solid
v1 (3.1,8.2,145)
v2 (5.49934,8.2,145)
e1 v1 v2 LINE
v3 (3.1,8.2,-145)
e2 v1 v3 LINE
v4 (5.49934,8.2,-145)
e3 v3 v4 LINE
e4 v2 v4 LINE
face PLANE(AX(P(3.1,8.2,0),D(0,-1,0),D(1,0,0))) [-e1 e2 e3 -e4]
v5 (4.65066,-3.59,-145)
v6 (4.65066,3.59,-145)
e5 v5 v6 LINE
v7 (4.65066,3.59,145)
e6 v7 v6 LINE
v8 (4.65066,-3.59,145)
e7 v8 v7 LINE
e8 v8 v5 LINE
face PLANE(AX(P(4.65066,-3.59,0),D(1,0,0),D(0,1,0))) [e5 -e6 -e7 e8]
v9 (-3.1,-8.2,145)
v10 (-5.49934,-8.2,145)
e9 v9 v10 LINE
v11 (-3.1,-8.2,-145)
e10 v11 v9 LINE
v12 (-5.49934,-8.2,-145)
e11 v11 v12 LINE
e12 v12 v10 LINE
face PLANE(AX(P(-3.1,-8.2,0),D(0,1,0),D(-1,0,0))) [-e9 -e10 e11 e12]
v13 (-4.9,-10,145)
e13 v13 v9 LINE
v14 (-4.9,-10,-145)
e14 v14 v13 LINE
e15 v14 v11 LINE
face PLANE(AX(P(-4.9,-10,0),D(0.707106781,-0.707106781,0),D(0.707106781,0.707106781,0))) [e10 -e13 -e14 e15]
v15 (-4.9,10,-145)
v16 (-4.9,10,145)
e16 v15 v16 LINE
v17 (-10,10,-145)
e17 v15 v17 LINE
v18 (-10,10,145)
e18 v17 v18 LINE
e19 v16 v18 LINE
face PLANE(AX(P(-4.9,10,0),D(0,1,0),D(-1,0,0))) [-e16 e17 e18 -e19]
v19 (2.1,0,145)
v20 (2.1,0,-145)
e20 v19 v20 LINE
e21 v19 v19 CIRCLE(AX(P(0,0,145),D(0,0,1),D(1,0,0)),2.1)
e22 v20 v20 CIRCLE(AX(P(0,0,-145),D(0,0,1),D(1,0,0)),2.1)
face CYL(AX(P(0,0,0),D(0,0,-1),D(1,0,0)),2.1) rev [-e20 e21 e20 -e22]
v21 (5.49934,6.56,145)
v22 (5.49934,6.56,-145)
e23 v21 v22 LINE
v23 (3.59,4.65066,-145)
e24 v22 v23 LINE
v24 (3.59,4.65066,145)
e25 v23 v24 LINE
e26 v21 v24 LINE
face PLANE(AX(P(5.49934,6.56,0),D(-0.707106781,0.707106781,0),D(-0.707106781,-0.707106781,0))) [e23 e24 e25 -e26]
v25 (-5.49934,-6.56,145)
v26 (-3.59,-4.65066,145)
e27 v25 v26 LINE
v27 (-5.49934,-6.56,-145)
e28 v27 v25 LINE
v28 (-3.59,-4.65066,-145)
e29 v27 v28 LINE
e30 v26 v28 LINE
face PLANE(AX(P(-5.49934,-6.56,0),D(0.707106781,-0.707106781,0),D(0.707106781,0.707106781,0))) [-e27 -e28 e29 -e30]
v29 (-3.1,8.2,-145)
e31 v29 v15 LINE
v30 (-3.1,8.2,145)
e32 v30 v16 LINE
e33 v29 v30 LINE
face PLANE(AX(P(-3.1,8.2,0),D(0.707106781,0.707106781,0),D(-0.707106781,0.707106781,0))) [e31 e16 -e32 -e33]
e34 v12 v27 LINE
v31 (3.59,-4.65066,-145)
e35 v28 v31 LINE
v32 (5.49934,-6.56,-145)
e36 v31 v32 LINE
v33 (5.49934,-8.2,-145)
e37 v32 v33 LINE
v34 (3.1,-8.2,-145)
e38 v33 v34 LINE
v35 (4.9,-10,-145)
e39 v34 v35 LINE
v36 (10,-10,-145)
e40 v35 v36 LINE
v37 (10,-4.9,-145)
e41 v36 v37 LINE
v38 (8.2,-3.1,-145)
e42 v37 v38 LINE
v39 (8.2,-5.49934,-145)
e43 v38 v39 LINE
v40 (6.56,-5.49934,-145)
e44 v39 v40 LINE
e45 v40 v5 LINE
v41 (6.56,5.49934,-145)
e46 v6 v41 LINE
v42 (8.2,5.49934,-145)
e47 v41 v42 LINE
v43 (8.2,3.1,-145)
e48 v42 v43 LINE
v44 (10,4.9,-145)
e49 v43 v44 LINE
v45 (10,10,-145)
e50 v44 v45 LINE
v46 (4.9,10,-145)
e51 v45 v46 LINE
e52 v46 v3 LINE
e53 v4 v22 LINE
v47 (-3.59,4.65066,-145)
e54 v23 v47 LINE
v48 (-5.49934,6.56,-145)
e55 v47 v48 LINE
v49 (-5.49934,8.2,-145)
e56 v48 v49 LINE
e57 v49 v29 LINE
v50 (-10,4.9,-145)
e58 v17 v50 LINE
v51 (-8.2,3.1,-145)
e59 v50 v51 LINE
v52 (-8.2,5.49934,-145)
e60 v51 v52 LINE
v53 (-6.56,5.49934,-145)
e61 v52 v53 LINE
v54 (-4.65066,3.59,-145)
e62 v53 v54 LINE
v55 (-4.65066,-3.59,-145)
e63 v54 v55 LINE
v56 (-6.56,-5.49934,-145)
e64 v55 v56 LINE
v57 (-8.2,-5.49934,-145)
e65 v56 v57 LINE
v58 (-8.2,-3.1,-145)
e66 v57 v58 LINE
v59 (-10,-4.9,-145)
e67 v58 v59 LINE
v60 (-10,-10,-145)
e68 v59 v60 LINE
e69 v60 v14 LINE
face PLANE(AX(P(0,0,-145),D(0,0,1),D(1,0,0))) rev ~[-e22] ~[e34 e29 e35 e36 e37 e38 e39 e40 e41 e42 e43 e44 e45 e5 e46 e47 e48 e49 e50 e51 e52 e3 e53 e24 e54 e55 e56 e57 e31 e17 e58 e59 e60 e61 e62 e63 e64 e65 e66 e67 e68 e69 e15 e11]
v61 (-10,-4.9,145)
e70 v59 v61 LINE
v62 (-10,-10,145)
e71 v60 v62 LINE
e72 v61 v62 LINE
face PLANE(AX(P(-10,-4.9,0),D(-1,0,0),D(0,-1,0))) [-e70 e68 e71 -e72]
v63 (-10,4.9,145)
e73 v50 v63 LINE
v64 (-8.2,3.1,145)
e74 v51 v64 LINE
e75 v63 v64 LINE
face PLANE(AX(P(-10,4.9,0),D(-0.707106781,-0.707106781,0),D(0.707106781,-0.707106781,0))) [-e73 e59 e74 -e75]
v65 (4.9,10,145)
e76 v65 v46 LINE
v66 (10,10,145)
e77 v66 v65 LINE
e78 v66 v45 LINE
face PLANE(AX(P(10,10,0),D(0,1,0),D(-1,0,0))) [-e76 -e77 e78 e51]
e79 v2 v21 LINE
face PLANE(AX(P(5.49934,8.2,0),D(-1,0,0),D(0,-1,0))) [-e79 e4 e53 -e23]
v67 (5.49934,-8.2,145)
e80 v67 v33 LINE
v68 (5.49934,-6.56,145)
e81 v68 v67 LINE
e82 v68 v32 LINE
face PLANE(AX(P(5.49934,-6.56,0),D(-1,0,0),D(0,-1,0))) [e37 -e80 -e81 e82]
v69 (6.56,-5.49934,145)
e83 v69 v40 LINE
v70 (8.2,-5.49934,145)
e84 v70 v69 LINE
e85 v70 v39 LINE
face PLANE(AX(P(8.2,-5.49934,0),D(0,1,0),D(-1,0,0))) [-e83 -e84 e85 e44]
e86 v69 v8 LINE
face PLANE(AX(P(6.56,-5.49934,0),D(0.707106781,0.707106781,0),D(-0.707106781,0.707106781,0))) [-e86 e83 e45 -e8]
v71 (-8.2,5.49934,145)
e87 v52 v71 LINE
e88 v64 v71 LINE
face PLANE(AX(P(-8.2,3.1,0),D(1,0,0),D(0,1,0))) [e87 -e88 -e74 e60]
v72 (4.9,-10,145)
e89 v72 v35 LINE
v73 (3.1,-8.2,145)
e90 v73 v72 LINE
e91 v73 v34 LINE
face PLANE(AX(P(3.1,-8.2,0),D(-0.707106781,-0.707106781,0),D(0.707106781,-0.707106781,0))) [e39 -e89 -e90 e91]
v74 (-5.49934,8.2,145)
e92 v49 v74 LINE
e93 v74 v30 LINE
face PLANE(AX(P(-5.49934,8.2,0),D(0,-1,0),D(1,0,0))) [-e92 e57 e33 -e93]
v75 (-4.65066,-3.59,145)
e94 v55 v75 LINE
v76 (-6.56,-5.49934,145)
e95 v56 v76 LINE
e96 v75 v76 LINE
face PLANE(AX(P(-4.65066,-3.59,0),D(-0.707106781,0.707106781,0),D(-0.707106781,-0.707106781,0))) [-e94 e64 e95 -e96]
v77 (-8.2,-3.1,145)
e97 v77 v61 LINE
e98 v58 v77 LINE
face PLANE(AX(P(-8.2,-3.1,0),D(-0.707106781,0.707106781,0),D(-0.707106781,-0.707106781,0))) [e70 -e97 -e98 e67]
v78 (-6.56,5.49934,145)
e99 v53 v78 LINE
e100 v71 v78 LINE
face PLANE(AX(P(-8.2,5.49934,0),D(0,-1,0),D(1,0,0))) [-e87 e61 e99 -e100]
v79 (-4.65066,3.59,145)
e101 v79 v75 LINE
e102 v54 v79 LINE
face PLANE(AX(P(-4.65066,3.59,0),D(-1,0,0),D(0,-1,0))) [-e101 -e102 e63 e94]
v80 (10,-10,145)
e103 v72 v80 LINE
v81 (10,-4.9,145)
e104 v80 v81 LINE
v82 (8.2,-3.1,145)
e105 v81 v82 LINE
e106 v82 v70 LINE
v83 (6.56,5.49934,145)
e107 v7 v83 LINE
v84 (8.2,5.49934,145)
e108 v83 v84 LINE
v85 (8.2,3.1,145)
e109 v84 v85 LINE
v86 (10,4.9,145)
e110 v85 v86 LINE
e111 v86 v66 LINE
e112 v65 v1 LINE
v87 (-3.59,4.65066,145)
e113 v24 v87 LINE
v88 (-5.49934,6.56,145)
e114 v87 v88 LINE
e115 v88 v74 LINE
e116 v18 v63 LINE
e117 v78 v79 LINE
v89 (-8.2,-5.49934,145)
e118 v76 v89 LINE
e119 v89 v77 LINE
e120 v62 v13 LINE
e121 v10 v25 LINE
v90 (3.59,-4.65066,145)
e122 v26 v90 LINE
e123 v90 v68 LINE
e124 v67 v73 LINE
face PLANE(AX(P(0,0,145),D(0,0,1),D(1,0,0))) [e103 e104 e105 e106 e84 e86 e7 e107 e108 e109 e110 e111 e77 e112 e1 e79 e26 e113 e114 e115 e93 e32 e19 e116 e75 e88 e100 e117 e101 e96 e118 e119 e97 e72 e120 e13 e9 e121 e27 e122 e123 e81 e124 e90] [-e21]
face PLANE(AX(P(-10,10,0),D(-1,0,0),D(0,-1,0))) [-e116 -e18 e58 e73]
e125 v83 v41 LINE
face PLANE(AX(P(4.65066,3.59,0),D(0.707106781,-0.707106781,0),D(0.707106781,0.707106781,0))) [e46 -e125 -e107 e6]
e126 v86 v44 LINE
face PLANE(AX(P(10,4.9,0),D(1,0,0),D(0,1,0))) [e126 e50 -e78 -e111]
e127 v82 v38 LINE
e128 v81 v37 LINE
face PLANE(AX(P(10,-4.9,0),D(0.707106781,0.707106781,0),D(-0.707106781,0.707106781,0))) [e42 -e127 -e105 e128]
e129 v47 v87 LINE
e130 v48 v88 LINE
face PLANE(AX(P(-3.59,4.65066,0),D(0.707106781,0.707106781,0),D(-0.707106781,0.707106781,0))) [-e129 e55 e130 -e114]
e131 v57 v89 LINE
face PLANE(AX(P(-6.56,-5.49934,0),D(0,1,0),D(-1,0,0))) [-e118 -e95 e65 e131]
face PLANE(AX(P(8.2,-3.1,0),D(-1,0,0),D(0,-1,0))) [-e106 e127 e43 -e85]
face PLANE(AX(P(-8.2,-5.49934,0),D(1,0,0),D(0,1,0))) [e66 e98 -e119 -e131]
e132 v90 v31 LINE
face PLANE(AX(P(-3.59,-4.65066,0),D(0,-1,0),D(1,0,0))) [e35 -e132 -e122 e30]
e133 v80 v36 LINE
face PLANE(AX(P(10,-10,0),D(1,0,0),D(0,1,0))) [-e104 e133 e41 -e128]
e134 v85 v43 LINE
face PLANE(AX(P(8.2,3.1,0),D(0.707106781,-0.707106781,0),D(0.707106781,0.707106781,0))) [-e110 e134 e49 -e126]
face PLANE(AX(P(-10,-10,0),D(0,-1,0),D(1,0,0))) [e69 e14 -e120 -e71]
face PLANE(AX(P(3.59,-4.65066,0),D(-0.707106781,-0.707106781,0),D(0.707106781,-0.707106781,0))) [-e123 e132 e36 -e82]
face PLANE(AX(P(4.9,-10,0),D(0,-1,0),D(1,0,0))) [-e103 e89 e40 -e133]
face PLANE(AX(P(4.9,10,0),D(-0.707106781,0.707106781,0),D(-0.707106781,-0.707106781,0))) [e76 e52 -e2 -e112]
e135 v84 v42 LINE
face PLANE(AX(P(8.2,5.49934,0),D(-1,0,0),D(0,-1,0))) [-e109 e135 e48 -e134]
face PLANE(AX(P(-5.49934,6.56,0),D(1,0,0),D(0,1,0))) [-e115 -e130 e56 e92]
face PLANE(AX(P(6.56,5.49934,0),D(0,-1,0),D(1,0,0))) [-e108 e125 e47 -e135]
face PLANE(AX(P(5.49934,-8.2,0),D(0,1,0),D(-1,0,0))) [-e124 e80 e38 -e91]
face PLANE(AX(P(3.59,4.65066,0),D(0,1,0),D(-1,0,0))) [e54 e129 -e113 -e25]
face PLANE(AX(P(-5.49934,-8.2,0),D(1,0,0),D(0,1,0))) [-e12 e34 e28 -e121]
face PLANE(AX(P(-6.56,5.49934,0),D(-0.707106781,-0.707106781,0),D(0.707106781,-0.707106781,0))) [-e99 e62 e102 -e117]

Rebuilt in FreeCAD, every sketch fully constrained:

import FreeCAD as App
import Part
import Sketcher

V = App.Vector


def add_polygon(sketch, points):
    """Adds a closed chain of lines whose ends are joined by coincident constraints."""
    first, n = sketch.GeometryCount, len(points)
    for a, b in zip(points, points[1:] + points[:1]):
        sketch.addGeometry(Part.LineSegment(App.Vector(*a, 0), App.Vector(*b, 0)), False)
    for i in range(n):
        sketch.addConstraint(Sketcher.Constraint("Coincident", first + i, 2, first + (i + 1) % n, 1))

doc = App.newDocument("Part")
body = doc.addObject("PartDesign::Body", "Body")

sketch1 = body.newObject("Sketcher::SketchObject", "Sketch")
sketch1.AttachmentSupport = (doc.getObject("XY_Plane"), [""])
sketch1.MapMode = "FlatFace"
add_polygon(sketch1, [(5.5, 6.6), (3.6, 4.7), (-3.6, 4.7), (-5.5, 6.6), (-5.5, 8.2), (-3.1, 8.2), (-4.9, 10), (-10, 10), (-10, 4.9), (-8.2, 3.1), (-8.2, 5.5), (-6.6, 5.5), (-4.7, 3.6), (-4.7, -3.6), (-6.6, -5.5), (-8.2, -5.5), (-8.2, -3.1), (-10, -4.9), (-10, -10), (-4.9, -10), (-3.1, -8.2), (-5.5, -8.2), (-5.5, -6.6), (-3.6, -4.7), (3.6, -4.7), (5.5, -6.6), (5.5, -8.2), (3.1, -8.2), (4.9, -10), (10, -10), (10, -4.9), (8.2, -3.1), (8.2, -5.5), (6.6, -5.5), (4.7, -3.6), (4.7, 3.6), (6.6, 5.5), (8.2, 5.5), (8.2, 3.1), (10, 4.9), (10, 10), (4.9, 10), (3.1, 8.2), (5.5, 8.2)])
sketch1.addGeometry(Part.Circle(V(0, 0, 0), V(0, 0, 1), 2.1), False)
sketch1.addConstraint([
    Sketcher.Constraint("Horizontal", 1),
    Sketcher.Constraint("Vertical", 3),
    Sketcher.Constraint("Horizontal", 4),
    Sketcher.Constraint("Horizontal", 6),
    Sketcher.Constraint("Vertical", 7),
    Sketcher.Constraint("Vertical", 9),
    Sketcher.Constraint("Horizontal", 10),
    Sketcher.Constraint("Vertical", 12),
    Sketcher.Constraint("Horizontal", 14),
    Sketcher.Constraint("Vertical", 15),
    Sketcher.Constraint("Vertical", 17),
    Sketcher.Constraint("Horizontal", 18),
    Sketcher.Constraint("Horizontal", 20),
    Sketcher.Constraint("Vertical", 21),
    Sketcher.Constraint("Horizontal", 23),
    Sketcher.Constraint("Vertical", 25),
    Sketcher.Constraint("Horizontal", 26),
    Sketcher.Constraint("Horizontal", 28),
    Sketcher.Constraint("Vertical", 29),
    Sketcher.Constraint("Vertical", 31),
    Sketcher.Constraint("Horizontal", 32),
    Sketcher.Constraint("Vertical", 34),
    Sketcher.Constraint("Horizontal", 36),
    Sketcher.Constraint("Vertical", 37),
    Sketcher.Constraint("Vertical", 39),
    Sketcher.Constraint("Horizontal", 40),
    Sketcher.Constraint("Horizontal", 42),
    Sketcher.Constraint("Vertical", 43),
    Sketcher.Constraint("Coincident", 44, 3, -1, 1),
    Sketcher.Constraint("Symmetric", 0, 2, 22, 2, -1, 1),
    Sketcher.Constraint("Symmetric", 2, 2, 24, 2, -1, 1),
    Sketcher.Constraint("Symmetric", 4, 2, 26, 2, -1, 1),
    Sketcher.Constraint("Symmetric", 5, 2, 27, 2, -1, 1),
    Sketcher.Constraint("Symmetric", 7, 2, 29, 2, -1, 1),
    Sketcher.Constraint("Symmetric", 8, 2, 30, 2, -1, 1),
    Sketcher.Constraint("Symmetric", 10, 2, 32, 2, -1, 1),
    Sketcher.Constraint("Symmetric", 11, 2, 33, 2, -1, 1),
    Sketcher.Constraint("Symmetric", 13, 2, 35, 2, -1, 1),
    Sketcher.Constraint("Symmetric", 15, 2, 37, 2, -1, 1),
    Sketcher.Constraint("Symmetric", 16, 2, 38, 2, -1, 1),
    Sketcher.Constraint("Symmetric", 18, 2, 40, 2, -1, 1),
    Sketcher.Constraint("Symmetric", 19, 2, 41, 2, -1, 1),
    Sketcher.Constraint("Symmetric", 21, 2, 43, 2, -1, 1),
    Sketcher.Constraint("Symmetric", 21, 2, 24, 2, -2),
    Sketcher.Constraint("Symmetric", 19, 2, 26, 2, -2),
    Sketcher.Constraint("Symmetric", 18, 2, 27, 2, -2),
    Sketcher.Constraint("Symmetric", 16, 2, 29, 2, -2),
    Sketcher.Constraint("Symmetric", 15, 2, 30, 2, -2),
    Sketcher.Constraint("Symmetric", 13, 2, 32, 2, -2),
    Sketcher.Constraint("Perpendicular", 0, 2),
    Sketcher.Constraint("Parallel", 2, 5),
    Sketcher.Constraint("Parallel", 5, 8),
    Sketcher.Constraint("Parallel", 8, 11),
    Sketcher.Constraint("Perpendicular", 11, 13),
    Sketcher.Constraint("Parallel", 13, 16),
    Sketcher.Constraint("Perpendicular", 22, 24),
    Sketcher.Constraint("Perpendicular", 33, 35),
    Sketcher.Constraint("Equal", 36, 3),
    Sketcher.Constraint("Equal", 40, 7),
    Sketcher.Constraint("Equal", 42, 9),
    Sketcher.Constraint("Equal", 23, 12),
    Sketcher.Constraint("Equal", 5, 8),
    Sketcher.Constraint("Equal", 2, 11),
    Sketcher.Constraint("Diameter", 44, 4.2),
    Sketcher.Constraint("DistanceX", 6, 2, 6, 1, 5.1),
    Sketcher.Constraint("DistanceY", -1, 1, 5, 2, 10.0),
    Sketcher.Constraint("DistanceY", 16, 2, 8, 2, 8.0),
    Sketcher.Constraint("DistanceX", 1, 2, 1, 1, 7.18),
    Sketcher.Constraint("DistanceX", 10, 1, 10, 2, 1.64),
    Sketcher.Constraint("DistanceX", 4, 1, 4, 2, 2.39934),
])
pad1 = body.newObject("PartDesign::Pad", "Pad")
pad1.Profile = sketch1
pad1.Length = 290
pad1.Midplane = True

doc.recompute()
